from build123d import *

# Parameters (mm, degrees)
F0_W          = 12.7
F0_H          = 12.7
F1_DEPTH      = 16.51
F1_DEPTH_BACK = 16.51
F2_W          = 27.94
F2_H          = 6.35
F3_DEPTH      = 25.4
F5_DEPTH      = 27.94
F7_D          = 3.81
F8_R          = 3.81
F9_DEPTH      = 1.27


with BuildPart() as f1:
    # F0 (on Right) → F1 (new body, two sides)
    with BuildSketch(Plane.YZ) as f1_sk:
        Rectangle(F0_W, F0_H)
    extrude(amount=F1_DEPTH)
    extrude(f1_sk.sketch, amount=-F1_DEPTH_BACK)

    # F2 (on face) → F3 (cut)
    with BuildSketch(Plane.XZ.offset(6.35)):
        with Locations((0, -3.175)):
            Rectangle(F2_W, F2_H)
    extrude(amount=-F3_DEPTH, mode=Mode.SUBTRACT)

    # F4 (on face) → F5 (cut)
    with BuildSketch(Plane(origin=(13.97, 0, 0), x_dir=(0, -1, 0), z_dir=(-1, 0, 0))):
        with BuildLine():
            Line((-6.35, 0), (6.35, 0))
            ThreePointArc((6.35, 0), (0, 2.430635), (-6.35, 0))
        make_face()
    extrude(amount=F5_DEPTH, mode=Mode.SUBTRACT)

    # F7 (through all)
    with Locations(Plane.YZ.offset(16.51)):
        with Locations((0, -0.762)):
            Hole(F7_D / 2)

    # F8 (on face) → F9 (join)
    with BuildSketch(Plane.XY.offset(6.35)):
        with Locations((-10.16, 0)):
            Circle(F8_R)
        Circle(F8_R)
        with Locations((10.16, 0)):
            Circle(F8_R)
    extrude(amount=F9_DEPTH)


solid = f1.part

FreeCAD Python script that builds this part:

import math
import FreeCAD as App
import Part
import Sketcher
from FreeCAD import Vector
Q = App.Units.Quantity

doc = App.newDocument("Part")
body = doc.addObject("PartDesign::Body", "Body")

# Sketch on YZ plane
sketch1 = doc.addObject("Sketcher::SketchObject", "Sketch")
body.addObject(sketch1)
sketch1.AttachmentSupport = (doc.YZ_Plane, [""])
sketch1.MapMode = "FlatFace"
sketch1.addGeometry([
    Part.LineSegment(Vector(-6, 6, 0), Vector(-6, -6, 0)),
    Part.LineSegment(Vector(-6, -6, 0), Vector(6, -6, 0)),
    Part.LineSegment(Vector(6, -6, 0), Vector(6, 6, 0)),
    Part.LineSegment(Vector(6, 6, 0), Vector(-6, 6, 0)),
], False)
sketch1.addConstraint([
    Sketcher.Constraint("Coincident", 0, 2, 1, 1),
    Sketcher.Constraint("Coincident", 1, 2, 2, 1),
    Sketcher.Constraint("Coincident", 2, 2, 3, 1),
    Sketcher.Constraint("Coincident", 3, 2, 0, 1),
    Sketcher.Constraint("Vertical", 0),
    Sketcher.Constraint("Horizontal", 1),
    Sketcher.Constraint("Vertical", 2),
    Sketcher.Constraint("Horizontal", 3),
    Sketcher.Constraint("Symmetric", 0, 2, 2, 2, -1, 1),
    Sketcher.Constraint("Equal", 3, 0),
    Sketcher.Constraint("DistanceX", 1, 1, 1, 2, Q("0.5 in")),
])
pad1 = doc.addObject("PartDesign::Pad", "Pad")
body.addObject(pad1)
pad1.Profile = sketch1
pad1.Type = "TwoLengths"
pad1.Length = Q("0.65 in")
pad1.Length2 = Q("0.65 in")

# Sketch on XZ plane
sketch2 = doc.addObject("Sketcher::SketchObject", "Sketch001")
body.addObject(sketch2)
sketch2.AttachmentSupport = (doc.XZ_Plane, [""])
sketch2.MapMode = "FlatFace"
sketch2.AttachmentOffset = App.Placement(Vector(0, 0, 0.25 * 25.4), App.Rotation())
sketch2.addGeometry([
    Part.LineSegment(Vector(-14, 0, 0), Vector(-14, -6, 0)),
    Part.LineSegment(Vector(-14, -6, 0), Vector(14, -6, 0)),
    Part.LineSegment(Vector(14, -6, 0), Vector(14, 0, 0)),
    Part.LineSegment(Vector(14, 0, 0), Vector(-14, 0, 0)),
], False)
sketch2.addConstraint([
    Sketcher.Constraint("Coincident", 0, 2, 1, 1),
    Sketcher.Constraint("Coincident", 1, 2, 2, 1),
    Sketcher.Constraint("Coincident", 2, 2, 3, 1),
    Sketcher.Constraint("Coincident", 3, 2, 0, 1),
    Sketcher.Constraint("Vertical", 0),
    Sketcher.Constraint("Horizontal", 1),
    Sketcher.Constraint("Vertical", 2),
    Sketcher.Constraint("Horizontal", 3),
    Sketcher.Constraint("Symmetric", 2, 2, 3, 2, -1, 1),
    Sketcher.Constraint("DistanceX", 1, 1, 1, 2, Q("1.1 in")),
    Sketcher.Constraint("DistanceY", 0, 2, 0, 1, Q("0.25 in")),
])
pocket1 = doc.addObject("PartDesign::Pocket", "Pocket")
body.addObject(pocket1)
pocket1.Profile = sketch2
pocket1.Length = Q("1 in")

# Sketch on YZ plane
sketch3 = doc.addObject("Sketcher::SketchObject", "Sketch002")
body.addObject(sketch3)
sketch3.AttachmentSupport = (doc.YZ_Plane, [""])
sketch3.MapMode = "FlatFace"
sketch3.AttachmentOffset = App.Placement(Vector(0, 0, 0.55 * 25.4), App.Rotation())
sketch3.addGeometry([
    Part.LineSegment(Vector(6, 0, 0), Vector(-6, 0, 0)),
    Part.ArcOfCircle(Part.Circle(Vector(0, -7, 0), Vector(0, 0, 1), 10), math.radians(48), math.radians(132)),
], False)
sketch3.addConstraint([
    Sketcher.Constraint("Coincident", 0, 1, 1, 1),
    Sketcher.Constraint("Coincident", 1, 2, 0, 2),
    Sketcher.Constraint("Horizontal", 0),
    Sketcher.Constraint("Symmetric", 0, 1, 1, 2, -1, 1),
    Sketcher.Constraint("DistanceX", 0, 2, 0, 1, Q("0.5 in")),
    Sketcher.Constraint("Radius", 1, 9.509961),
])
pocket2 = doc.addObject("PartDesign::Pocket", "Pocket001")
body.addObject(pocket2)
pocket2.Profile = sketch3
pocket2.Length = Q("1.1 in")

# Sketch on YZ plane
sketch4 = doc.addObject("Sketcher::SketchObject", "Sketch003")
body.addObject(sketch4)
sketch4.AttachmentSupport = (doc.YZ_Plane, [""])
sketch4.MapMode = "FlatFace"
sketch4.AttachmentOffset = App.Placement(Vector(0, 0, 0.65 * 25.4), App.Rotation())
sketch4.addGeometry(Part.Circle(Vector(0, -0.8, 0), Vector(0, 0, 1), 1.9), False)
sketch4.addConstraint([
    Sketcher.Constraint("PointOnObject", 0, 3, -2),
    Sketcher.Constraint("Diameter", 0, Q("0.15 in")),
    Sketcher.Constraint("DistanceY", 0, 3, -1, 1, Q("0.03 in")),
])
doc.recompute()
hole = doc.addObject("PartDesign::Hole", "Hole")
body.addObject(hole)
hole.Profile = sketch4
hole.ThreadType = "None"
hole.Diameter = Q("0.15 in")
hole.DepthType = "ThroughAll"

# Sketch on XY plane
sketch5 = doc.addObject("Sketcher::SketchObject", "Sketch004")
body.addObject(sketch5)
sketch5.AttachmentSupport = (doc.XY_Plane, [""])
sketch5.MapMode = "FlatFace"
sketch5.AttachmentOffset = App.Placement(Vector(0, 0, 0.25 * 25.4), App.Rotation())
sketch5.addGeometry([
    Part.Circle(Vector(-10.2, 0, 0), Vector(0, 0, 1), 3.8),
    Part.Circle(Vector(0, 0, 0), Vector(0, 0, 1), 3.8),
    Part.Circle(Vector(10.2, 0, 0), Vector(0, 0, 1), 3.8),
], False)
sketch5.addConstraint([
    Sketcher.Constraint("Coincident", 1, 3, -1, 1),
    Sketcher.Constraint("Equal", 0, 1),
    Sketcher.Constraint("Equal", 1, 2),
    Sketcher.Constraint("Symmetric", 0, 3, 2, 3, -1, 1),
    Sketcher.Constraint("PointOnObject", 0, 3, -1),
    Sketcher.Constraint("Diameter", 0, Q("0.3 in")),
    Sketcher.Constraint("DistanceX", 0, 3, -1, 1, Q("0.4 in")),
])
pad2 = doc.addObject("PartDesign::Pad", "Pad001")
body.addObject(pad2)
pad2.Profile = sketch5
pad2.Length = Q("0.05 in")

doc.recompute()
